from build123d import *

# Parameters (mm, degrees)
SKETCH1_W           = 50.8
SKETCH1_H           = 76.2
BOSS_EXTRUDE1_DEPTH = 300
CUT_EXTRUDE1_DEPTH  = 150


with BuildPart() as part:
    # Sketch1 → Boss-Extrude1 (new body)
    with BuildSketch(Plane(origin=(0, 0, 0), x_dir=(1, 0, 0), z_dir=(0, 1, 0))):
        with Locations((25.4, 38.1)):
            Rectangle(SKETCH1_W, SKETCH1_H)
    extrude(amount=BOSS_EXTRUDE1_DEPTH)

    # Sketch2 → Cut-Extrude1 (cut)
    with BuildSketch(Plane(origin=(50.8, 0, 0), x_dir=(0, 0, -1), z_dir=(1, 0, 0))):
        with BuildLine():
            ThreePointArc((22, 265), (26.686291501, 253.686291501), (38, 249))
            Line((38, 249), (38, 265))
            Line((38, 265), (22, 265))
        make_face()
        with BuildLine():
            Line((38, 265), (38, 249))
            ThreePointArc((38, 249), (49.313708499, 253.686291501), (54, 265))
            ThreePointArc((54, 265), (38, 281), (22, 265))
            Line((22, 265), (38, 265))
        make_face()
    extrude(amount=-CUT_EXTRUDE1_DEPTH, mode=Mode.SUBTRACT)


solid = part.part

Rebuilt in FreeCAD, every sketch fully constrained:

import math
import FreeCAD as App
import Part
import Sketcher

V = App.Vector

doc = App.newDocument("Part")
body = doc.addObject("PartDesign::Body", "Body")

# Sketch on XZ plane
sketch1 = doc.addObject("Sketcher::SketchObject", "Sketch")
body.addObject(sketch1)
sketch1.AttachmentSupport = (doc.XZ_Plane, [""])
sketch1.MapMode = "FlatFace"
sketch1.addGeometry([
    Part.LineSegment(V(0, -76, 0), V(0, 0, 0)),
    Part.LineSegment(V(0, 0, 0), V(51, 0, 0)),
    Part.LineSegment(V(51, 0, 0), V(51, -76, 0)),
    Part.LineSegment(V(51, -76, 0), V(0, -76, 0)),
], False)
sketch1.addConstraint([
    Sketcher.Constraint("Coincident", 0, 2, 1, 1),
    Sketcher.Constraint("Coincident", 1, 2, 2, 1),
    Sketcher.Constraint("Coincident", 2, 2, 3, 1),
    Sketcher.Constraint("Coincident", 3, 2, 0, 1),
    Sketcher.Constraint("Vertical", 0),
    Sketcher.Constraint("Horizontal", 1),
    Sketcher.Constraint("Vertical", 2),
    Sketcher.Constraint("Horizontal", 3),
    Sketcher.Constraint("Coincident", 0, 2, -1, 1),
    Sketcher.Constraint("DistanceX", 1, 1, 1, 2, 50.8),
    Sketcher.Constraint("DistanceY", 0, 1, 0, 2, 76.2),
])
pad1 = doc.addObject("PartDesign::Pad", "Pad")
body.addObject(pad1)
pad1.Profile = sketch1
pad1.Length = 300
pad1.Reversed = True

# Sketch on YZ plane
sketch2 = doc.addObject("Sketcher::SketchObject", "Sketch001")
body.addObject(sketch2)
sketch2.AttachmentSupport = (doc.YZ_Plane, [""])
sketch2.MapMode = "FlatFace"
sketch2.AttachmentOffset = App.Placement(V(0, 0, 50.8), App.Rotation())
sketch2.addGeometry([
    Part.ArcOfCircle(Part.Circle(V(265, -38, 0), V(0, 0, 1), 16), math.radians(90), math.radians(180)),
    Part.ArcOfCircle(Part.Circle(V(265, -38, 0), V(0, 0, 1), 16), math.radians(180), math.radians(270)),
    Part.ArcOfCircle(Part.Circle(V(265, -38, 0), V(0, 0, 1), 16), math.radians(-90), math.radians(90)),
], False)
sketch2.addConstraint([
    Sketcher.Constraint("Tangent", 0, 2, 1, 1),
    Sketcher.Constraint("Tangent", 1, 2, 2, 1),
    Sketcher.Constraint("Tangent", 2, 2, 0, 1),
    Sketcher.Constraint("Horizontal", 2, 3, 0, 2),
    Sketcher.Constraint("Vertical", 2, 3, 1, 2),
    Sketcher.Constraint("Vertical", 1, 2, 2, 2),
    Sketcher.Constraint("Radius", 0, 16.0),
    Sketcher.Constraint("DistanceX", -1, 1, 0, 3, 265.0),
    Sketcher.Constraint("DistanceY", 0, 3, -1, 1, 38.0),
])
pocket1 = doc.addObject("PartDesign::Pocket", "Pocket")
body.addObject(pocket1)
pocket1.Profile = sketch2
pocket1.Length = 150

doc.recompute()
